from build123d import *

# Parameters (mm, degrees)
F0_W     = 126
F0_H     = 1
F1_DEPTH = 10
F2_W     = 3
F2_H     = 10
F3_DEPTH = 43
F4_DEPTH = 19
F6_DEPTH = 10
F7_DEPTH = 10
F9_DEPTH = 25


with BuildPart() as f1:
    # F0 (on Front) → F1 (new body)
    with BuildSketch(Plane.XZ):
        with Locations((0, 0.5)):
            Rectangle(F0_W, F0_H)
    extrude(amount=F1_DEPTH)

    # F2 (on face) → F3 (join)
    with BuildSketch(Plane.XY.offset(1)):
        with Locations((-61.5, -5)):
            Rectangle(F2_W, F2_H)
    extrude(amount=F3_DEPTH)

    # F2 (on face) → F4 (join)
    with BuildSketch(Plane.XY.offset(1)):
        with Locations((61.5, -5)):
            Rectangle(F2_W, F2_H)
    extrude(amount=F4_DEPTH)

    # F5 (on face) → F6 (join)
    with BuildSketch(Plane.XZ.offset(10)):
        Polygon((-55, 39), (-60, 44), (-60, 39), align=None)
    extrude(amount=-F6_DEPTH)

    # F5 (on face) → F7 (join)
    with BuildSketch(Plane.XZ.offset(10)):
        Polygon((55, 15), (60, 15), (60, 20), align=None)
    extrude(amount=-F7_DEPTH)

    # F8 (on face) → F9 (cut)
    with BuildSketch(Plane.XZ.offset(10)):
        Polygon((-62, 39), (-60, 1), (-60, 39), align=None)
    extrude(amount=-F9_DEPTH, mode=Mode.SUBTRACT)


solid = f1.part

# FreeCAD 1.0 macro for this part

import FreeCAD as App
import Part
import Sketcher
from FreeCAD import Vector
Q = App.Units.Quantity

doc = App.newDocument("Part")
body = doc.addObject("PartDesign::Body", "Body")

# Sketch on XZ plane
sketch1 = body.newObject("Sketcher::SketchObject", "Sketch")
sketch1.AttachmentSupport = (doc.getObject("XZ_Plane"), [""])
sketch1.MapMode = "FlatFace"
sketch1.addGeometry([
    Part.LineSegment(Vector(-63, 1, 0), Vector(-63, 0, 0)),
    Part.LineSegment(Vector(-63, 0, 0), Vector(63, 0, 0)),
    Part.LineSegment(Vector(63, 0, 0), Vector(63, 1, 0)),
    Part.LineSegment(Vector(63, 1, 0), Vector(-63, 1, 0)),
], False)
sketch1.addConstraint([
    Sketcher.Constraint("Coincident", 0, 2, 1, 1),
    Sketcher.Constraint("Coincident", 1, 2, 2, 1),
    Sketcher.Constraint("Coincident", 2, 2, 3, 1),
    Sketcher.Constraint("Coincident", 3, 2, 0, 1),
    Sketcher.Constraint("Vertical", 0),
    Sketcher.Constraint("Horizontal", 1),
    Sketcher.Constraint("Vertical", 2),
    Sketcher.Constraint("Horizontal", 3),
    Sketcher.Constraint("Symmetric", 0, 2, 1, 2, -1, 1),
    Sketcher.Constraint("DistanceX", 1, 1, 1, 2, Q("126 mm")),
    Sketcher.Constraint("DistanceY", 0, 2, 0, 1, Q("1 mm")),
])
pad1 = body.newObject("PartDesign::Pad", "Pad")
pad1.Profile = sketch1
pad1.Length = 10

# Sketch on XY plane
sketch2 = body.newObject("Sketcher::SketchObject", "Sketch001")
sketch2.AttachmentSupport = (doc.getObject("XY_Plane"), [""])
sketch2.MapMode = "FlatFace"
sketch2.AttachmentOffset = App.Placement(Vector(0, 0, 1), App.Rotation())
sketch2.addGeometry([
    Part.LineSegment(Vector(-63, 0, 0), Vector(-63, -10, 0)),
    Part.LineSegment(Vector(-63, -10, 0), Vector(-60, -10, 0)),
    Part.LineSegment(Vector(-60, -10, 0), Vector(-60, 0, 0)),
    Part.LineSegment(Vector(-60, 0, 0), Vector(-63, 0, 0)),
], False)
sketch2.addConstraint([
    Sketcher.Constraint("Coincident", 0, 2, 1, 1),
    Sketcher.Constraint("Coincident", 1, 2, 2, 1),
    Sketcher.Constraint("Coincident", 2, 2, 3, 1),
    Sketcher.Constraint("Coincident", 3, 2, 0, 1),
    Sketcher.Constraint("Vertical", 0),
    Sketcher.Constraint("Horizontal", 1),
    Sketcher.Constraint("Vertical", 2),
    Sketcher.Constraint("Horizontal", 3),
    Sketcher.Constraint("PointOnObject", 2, 2, -1),
    Sketcher.Constraint("DistanceX", 1, 1, 1, 2, Q("3 mm")),
    Sketcher.Constraint("DistanceY", 0, 2, 0, 1, Q("10 mm")),
    Sketcher.Constraint("DistanceX", 0, 2, -1, 1, Q("63 mm")),
])
pad2 = body.newObject("PartDesign::Pad", "Pad001")
pad2.Profile = sketch2
pad2.Length = 43

# Sketch on XY plane
sketch3 = body.newObject("Sketcher::SketchObject", "Sketch002")
sketch3.AttachmentSupport = (doc.getObject("XY_Plane"), [""])
sketch3.MapMode = "FlatFace"
sketch3.AttachmentOffset = App.Placement(Vector(0, 0, 1), App.Rotation())
sketch3.addGeometry([
    Part.LineSegment(Vector(60, 0, 0), Vector(60, -10, 0)),
    Part.LineSegment(Vector(60, -10, 0), Vector(63, -10, 0)),
    Part.LineSegment(Vector(63, -10, 0), Vector(63, 0, 0)),
    Part.LineSegment(Vector(63, 0, 0), Vector(60, 0, 0)),
], False)
sketch3.addConstraint([
    Sketcher.Constraint("Coincident", 0, 2, 1, 1),
    Sketcher.Constraint("Coincident", 1, 2, 2, 1),
    Sketcher.Constraint("Coincident", 2, 2, 3, 1),
    Sketcher.Constraint("Coincident", 3, 2, 0, 1),
    Sketcher.Constraint("Vertical", 0),
    Sketcher.Constraint("Horizontal", 1),
    Sketcher.Constraint("Vertical", 2),
    Sketcher.Constraint("Horizontal", 3),
    Sketcher.Constraint("PointOnObject", 2, 2, -1),
    Sketcher.Constraint("DistanceX", 1, 1, 1, 2, Q("3 mm")),
    Sketcher.Constraint("DistanceY", 0, 2, 0, 1, Q("10 mm")),
    Sketcher.Constraint("DistanceX", -1, 1, 0, 2, Q("60 mm")),
])
pad3 = body.newObject("PartDesign::Pad", "Pad002")
pad3.Profile = sketch3
pad3.Length = 19

# Sketch on XZ plane
sketch4 = body.newObject("Sketcher::SketchObject", "Sketch003")
sketch4.AttachmentSupport = (doc.getObject("XZ_Plane"), [""])
sketch4.MapMode = "FlatFace"
sketch4.AttachmentOffset = App.Placement(Vector(0, 0, 10), App.Rotation())
sketch4.addGeometry([
    Part.LineSegment(Vector(-55, 39, 0), Vector(-60, 44, 0)),
    Part.LineSegment(Vector(-60, 44, 0), Vector(-60, 39, 0)),
    Part.LineSegment(Vector(-60, 39, 0), Vector(-55, 39, 0)),
], False)
sketch4.addConstraint([
    Sketcher.Constraint("Coincident", 0, 2, 1, 1),
    Sketcher.Constraint("Coincident", 1, 2, 2, 1),
    Sketcher.Constraint("Coincident", 2, 2, 0, 1),
    Sketcher.Constraint("Vertical", 1),
    Sketcher.Constraint("Horizontal", 2),
    Sketcher.Constraint("Equal", 2, 1),
    Sketcher.Constraint("DistanceX", 2, 1, 2, 2, Q("5 mm")),
    Sketcher.Constraint("DistanceX", 0, 2, -1, 1, Q("60 mm")),
    Sketcher.Constraint("DistanceY", -1, 1, 0, 2, Q("44 mm")),
])
pad4 = body.newObject("PartDesign::Pad", "Pad003")
pad4.Profile = sketch4
pad4.Length = 10
pad4.Reversed = True

# Sketch on XZ plane
sketch5 = body.newObject("Sketcher::SketchObject", "Sketch004")
sketch5.AttachmentSupport = (doc.getObject("XZ_Plane"), [""])
sketch5.MapMode = "FlatFace"
sketch5.AttachmentOffset = App.Placement(Vector(0, 0, 10), App.Rotation())
sketch5.addGeometry([
    Part.LineSegment(Vector(55, 15, 0), Vector(60, 15, 0)),
    Part.LineSegment(Vector(60, 15, 0), Vector(60, 20, 0)),
    Part.LineSegment(Vector(60, 20, 0), Vector(55, 15, 0)),
], False)
sketch5.addConstraint([
    Sketcher.Constraint("Coincident", 0, 2, 1, 1),
    Sketcher.Constraint("Coincident", 1, 2, 2, 1),
    Sketcher.Constraint("Coincident", 2, 2, 0, 1),
    Sketcher.Constraint("Horizontal", 0),
    Sketcher.Constraint("Vertical", 1),
    Sketcher.Constraint("Equal", 0, 1),
    Sketcher.Constraint("DistanceX", 0, 1, 0, 2, Q("5 mm")),
    Sketcher.Constraint("DistanceX", -1, 1, 0, 2, Q("60 mm")),
    Sketcher.Constraint("DistanceY", -1, 1, 0, 2, Q("15 mm")),
])
pad5 = body.newObject("PartDesign::Pad", "Pad004")
pad5.Profile = sketch5
pad5.Length = 10
pad5.Reversed = True

# Sketch on XZ plane
sketch6 = body.newObject("Sketcher::SketchObject", "Sketch005")
sketch6.AttachmentSupport = (doc.getObject("XZ_Plane"), [""])
sketch6.MapMode = "FlatFace"
sketch6.AttachmentOffset = App.Placement(Vector(0, 0, 10), App.Rotation())
sketch6.addGeometry([
    Part.LineSegment(Vector(-62, 39, 0), Vector(-60, 1, 0)),
    Part.LineSegment(Vector(-60, 1, 0), Vector(-60, 39, 0)),
    Part.LineSegment(Vector(-60, 39, 0), Vector(-62, 39, 0)),
], False)
sketch6.addConstraint([
    Sketcher.Constraint("Coincident", 0, 2, 1, 1),
    Sketcher.Constraint("Coincident", 1, 2, 2, 1),
    Sketcher.Constraint("Coincident", 2, 2, 0, 1),
    Sketcher.Constraint("Vertical", 1),
    Sketcher.Constraint("Horizontal", 2),
    Sketcher.Constraint("DistanceX", 2, 2, 2, 1, Q("2 mm")),
    Sketcher.Constraint("DistanceY", 1, 1, 1, 2, Q("38 mm")),
    Sketcher.Constraint("DistanceX", 0, 2, -1, 1, Q("60 mm")),
    Sketcher.Constraint("DistanceY", -1, 1, 0, 2, Q("1 mm")),
])
pocket1 = body.newObject("PartDesign::Pocket", "Pocket")
pocket1.Profile = sketch6
pocket1.Length = 25

doc.recompute()
